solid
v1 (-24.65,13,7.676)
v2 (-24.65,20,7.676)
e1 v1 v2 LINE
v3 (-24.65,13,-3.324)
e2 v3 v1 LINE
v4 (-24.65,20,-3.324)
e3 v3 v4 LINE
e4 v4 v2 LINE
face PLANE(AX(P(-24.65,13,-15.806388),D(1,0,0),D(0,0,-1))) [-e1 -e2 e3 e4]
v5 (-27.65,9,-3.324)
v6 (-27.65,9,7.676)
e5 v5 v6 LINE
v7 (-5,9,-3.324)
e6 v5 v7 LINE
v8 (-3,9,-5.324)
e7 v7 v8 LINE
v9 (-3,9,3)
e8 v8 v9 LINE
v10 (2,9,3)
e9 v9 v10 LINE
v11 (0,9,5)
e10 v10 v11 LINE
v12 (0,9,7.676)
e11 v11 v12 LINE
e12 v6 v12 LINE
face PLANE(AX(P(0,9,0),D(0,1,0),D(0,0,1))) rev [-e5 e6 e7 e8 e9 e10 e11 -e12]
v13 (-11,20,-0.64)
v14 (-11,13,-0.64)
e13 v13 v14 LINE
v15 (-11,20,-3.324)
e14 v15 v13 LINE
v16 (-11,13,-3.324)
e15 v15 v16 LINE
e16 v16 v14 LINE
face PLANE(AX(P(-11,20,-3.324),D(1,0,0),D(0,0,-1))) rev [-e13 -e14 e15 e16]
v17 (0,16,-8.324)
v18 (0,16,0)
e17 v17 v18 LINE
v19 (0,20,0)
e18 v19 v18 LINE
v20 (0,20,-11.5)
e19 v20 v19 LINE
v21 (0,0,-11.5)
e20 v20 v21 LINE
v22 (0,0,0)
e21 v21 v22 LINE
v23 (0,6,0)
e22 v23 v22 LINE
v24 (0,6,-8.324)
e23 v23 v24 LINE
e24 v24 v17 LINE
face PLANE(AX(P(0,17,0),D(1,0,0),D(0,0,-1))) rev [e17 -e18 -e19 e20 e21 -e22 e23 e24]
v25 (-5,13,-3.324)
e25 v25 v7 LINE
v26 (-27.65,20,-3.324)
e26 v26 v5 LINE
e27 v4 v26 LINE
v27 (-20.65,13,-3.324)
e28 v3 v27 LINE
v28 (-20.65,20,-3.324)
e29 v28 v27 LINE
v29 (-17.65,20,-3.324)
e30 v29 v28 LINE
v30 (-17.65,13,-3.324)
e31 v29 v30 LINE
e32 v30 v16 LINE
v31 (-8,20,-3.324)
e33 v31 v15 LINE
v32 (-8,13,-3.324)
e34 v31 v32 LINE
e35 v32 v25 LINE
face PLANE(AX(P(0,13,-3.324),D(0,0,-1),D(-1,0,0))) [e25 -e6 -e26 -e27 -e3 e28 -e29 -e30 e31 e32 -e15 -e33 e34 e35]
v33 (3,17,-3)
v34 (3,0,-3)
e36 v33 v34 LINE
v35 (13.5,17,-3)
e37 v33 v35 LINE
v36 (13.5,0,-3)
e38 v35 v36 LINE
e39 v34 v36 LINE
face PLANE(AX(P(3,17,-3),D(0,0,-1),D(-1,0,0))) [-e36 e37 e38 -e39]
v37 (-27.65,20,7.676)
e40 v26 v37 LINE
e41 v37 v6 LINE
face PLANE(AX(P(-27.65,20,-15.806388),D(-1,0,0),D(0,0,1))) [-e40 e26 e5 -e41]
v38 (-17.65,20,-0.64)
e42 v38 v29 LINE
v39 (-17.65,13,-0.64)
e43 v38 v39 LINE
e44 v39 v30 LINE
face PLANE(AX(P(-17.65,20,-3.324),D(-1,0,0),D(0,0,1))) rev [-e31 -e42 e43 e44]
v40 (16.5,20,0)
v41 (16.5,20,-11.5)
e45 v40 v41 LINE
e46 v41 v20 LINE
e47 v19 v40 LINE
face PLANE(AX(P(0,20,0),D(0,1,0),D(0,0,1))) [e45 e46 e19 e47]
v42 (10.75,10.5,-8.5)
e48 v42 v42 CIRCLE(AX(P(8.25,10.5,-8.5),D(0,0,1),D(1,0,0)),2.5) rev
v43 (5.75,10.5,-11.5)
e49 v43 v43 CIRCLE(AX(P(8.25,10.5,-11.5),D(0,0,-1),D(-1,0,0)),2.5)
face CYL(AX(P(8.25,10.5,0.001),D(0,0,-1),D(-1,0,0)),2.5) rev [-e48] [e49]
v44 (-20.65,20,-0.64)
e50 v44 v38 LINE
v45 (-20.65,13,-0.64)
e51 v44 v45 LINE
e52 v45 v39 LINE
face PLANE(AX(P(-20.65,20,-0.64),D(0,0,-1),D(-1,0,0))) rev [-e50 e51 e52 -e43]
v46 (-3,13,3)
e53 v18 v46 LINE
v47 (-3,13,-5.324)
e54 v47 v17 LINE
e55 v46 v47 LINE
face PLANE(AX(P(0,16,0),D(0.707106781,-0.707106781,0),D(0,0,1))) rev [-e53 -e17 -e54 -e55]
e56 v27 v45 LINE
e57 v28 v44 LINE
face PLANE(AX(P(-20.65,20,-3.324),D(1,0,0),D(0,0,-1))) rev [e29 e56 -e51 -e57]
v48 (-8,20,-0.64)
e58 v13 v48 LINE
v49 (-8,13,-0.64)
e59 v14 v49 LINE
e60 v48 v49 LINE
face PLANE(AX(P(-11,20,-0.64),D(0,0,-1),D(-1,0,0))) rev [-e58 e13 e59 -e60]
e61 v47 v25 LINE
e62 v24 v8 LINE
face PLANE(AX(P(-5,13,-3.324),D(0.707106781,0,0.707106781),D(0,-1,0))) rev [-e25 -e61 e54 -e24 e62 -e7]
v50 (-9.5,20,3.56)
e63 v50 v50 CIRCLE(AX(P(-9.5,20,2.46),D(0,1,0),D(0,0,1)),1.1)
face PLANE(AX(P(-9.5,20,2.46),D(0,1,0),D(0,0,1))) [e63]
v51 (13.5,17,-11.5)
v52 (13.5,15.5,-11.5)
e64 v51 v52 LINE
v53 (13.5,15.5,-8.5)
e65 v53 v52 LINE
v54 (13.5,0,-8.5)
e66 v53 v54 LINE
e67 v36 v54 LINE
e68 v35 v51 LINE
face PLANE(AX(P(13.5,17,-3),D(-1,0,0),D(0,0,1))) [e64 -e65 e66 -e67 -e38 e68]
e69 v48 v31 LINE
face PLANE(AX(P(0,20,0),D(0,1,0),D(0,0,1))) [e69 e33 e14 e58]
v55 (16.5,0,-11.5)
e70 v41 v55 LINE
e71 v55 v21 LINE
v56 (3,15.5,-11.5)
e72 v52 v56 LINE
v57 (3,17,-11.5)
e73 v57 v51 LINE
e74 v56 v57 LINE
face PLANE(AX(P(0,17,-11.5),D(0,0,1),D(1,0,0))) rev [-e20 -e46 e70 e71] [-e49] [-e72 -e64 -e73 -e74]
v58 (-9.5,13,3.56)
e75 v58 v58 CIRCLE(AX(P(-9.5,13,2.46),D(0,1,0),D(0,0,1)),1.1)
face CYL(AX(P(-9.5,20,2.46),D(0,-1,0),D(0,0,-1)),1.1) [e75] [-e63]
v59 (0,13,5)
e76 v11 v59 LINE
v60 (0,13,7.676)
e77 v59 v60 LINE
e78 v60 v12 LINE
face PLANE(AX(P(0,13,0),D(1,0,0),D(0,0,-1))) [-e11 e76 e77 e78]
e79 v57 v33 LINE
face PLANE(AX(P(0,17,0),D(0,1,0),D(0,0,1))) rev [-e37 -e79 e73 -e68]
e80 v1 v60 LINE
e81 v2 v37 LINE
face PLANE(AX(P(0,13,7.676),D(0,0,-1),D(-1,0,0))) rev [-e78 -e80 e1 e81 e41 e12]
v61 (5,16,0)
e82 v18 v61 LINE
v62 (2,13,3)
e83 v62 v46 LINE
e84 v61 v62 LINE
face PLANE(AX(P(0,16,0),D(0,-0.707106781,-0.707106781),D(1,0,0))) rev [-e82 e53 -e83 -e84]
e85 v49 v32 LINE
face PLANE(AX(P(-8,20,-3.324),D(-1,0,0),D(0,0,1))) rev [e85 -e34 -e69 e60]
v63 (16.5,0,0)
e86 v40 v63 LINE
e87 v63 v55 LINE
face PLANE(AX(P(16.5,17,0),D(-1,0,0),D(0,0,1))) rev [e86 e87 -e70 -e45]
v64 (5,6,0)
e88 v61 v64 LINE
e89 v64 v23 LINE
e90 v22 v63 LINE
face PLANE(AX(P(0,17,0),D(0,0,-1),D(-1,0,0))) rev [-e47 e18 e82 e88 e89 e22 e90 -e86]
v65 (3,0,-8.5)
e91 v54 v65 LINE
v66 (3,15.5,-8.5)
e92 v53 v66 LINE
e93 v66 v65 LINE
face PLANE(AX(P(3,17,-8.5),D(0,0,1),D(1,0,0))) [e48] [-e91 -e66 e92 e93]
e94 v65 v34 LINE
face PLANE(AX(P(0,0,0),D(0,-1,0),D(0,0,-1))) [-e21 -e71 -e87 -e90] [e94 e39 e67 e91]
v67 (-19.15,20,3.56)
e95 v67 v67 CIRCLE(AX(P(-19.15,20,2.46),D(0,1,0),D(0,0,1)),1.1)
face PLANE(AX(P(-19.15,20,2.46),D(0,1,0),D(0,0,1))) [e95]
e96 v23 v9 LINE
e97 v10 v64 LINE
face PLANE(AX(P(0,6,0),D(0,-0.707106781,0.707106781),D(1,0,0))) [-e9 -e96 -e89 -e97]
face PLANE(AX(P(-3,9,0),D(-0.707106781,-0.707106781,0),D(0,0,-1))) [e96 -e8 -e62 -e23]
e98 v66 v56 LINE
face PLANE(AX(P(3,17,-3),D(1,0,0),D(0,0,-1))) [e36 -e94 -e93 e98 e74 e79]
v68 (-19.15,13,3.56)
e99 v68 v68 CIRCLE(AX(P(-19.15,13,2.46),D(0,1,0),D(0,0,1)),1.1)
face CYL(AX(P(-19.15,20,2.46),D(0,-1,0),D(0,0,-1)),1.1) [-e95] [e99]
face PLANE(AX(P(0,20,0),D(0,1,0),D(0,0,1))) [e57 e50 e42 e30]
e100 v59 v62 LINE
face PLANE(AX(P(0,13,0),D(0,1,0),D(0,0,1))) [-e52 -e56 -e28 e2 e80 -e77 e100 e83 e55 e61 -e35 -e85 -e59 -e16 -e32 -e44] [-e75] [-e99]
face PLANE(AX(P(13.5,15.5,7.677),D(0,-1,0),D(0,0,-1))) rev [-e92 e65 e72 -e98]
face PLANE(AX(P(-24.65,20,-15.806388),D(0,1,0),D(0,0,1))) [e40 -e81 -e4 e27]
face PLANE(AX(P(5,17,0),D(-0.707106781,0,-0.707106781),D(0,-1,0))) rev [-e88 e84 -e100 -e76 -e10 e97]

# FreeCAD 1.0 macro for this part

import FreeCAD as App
import Part
import Sketcher

V = App.Vector


def edges_at(feature, points):
    """Names of the edges that pass closest to the given points."""
    edges = feature.Shape.Edges
    near = lambda p: min(range(len(edges)), key=lambda i: edges[i].distToShape(Part.Vertex(*p))[0])
    return sorted({f"Edge{near(p) + 1}" for p in points})

doc = App.newDocument("Part")
body = doc.addObject("PartDesign::Body", "Body")

# Sketch on XZ plane
sketch1 = body.newObject("Sketcher::SketchObject", "Sketch")
sketch1.AttachmentSupport = (doc.getObject("XZ_Plane"), [""])
sketch1.MapMode = "FlatFace"
sketch1.addGeometry(Part.LineSegment(V(0, -12, 0), V(0, 0, 0)), False)
sketch1.addGeometry(Part.LineSegment(V(0, 0, 0), V(16, 0, 0)), False)
sketch1.addGeometry(Part.LineSegment(V(16, 0, 0), V(16, -12, 0)), False)
sketch1.addGeometry(Part.LineSegment(V(16, -12, 0), V(0, -12, 0)), False)
sketch1.addGeometry(Part.LineSegment(V(14, -3, 0), V(3, -3, 0)), False)
sketch1.addGeometry(Part.LineSegment(V(3, -3, 0), V(3, -8, 0)), False)
sketch1.addGeometry(Part.LineSegment(V(3, -8, 0), V(14, -8, 0)), False)
sketch1.addGeometry(Part.LineSegment(V(14, -8, 0), V(14, -3, 0)), False)
sketch1.addConstraint(Sketcher.Constraint("Coincident", 0, 2, 1, 1))
sketch1.addConstraint(Sketcher.Constraint("Coincident", 1, 2, 2, 1))
sketch1.addConstraint(Sketcher.Constraint("Coincident", 2, 2, 3, 1))
sketch1.addConstraint(Sketcher.Constraint("Coincident", 3, 2, 0, 1))
sketch1.addConstraint(Sketcher.Constraint("Coincident", 4, 2, 5, 1))
sketch1.addConstraint(Sketcher.Constraint("Coincident", 5, 2, 6, 1))
sketch1.addConstraint(Sketcher.Constraint("Coincident", 6, 2, 7, 1))
sketch1.addConstraint(Sketcher.Constraint("Coincident", 7, 2, 4, 1))
sketch1.addConstraint(Sketcher.Constraint("Vertical", 0))
sketch1.addConstraint(Sketcher.Constraint("Horizontal", 1))
sketch1.addConstraint(Sketcher.Constraint("Vertical", 2))
sketch1.addConstraint(Sketcher.Constraint("Horizontal", 3))
sketch1.addConstraint(Sketcher.Constraint("Horizontal", 4))
sketch1.addConstraint(Sketcher.Constraint("Vertical", 5))
sketch1.addConstraint(Sketcher.Constraint("Horizontal", 6))
sketch1.addConstraint(Sketcher.Constraint("Vertical", 7))
sketch1.addConstraint(Sketcher.Constraint("Coincident", 0, 2, -1, 1))
sketch1.addConstraint(Sketcher.Constraint("DistanceX", 1, 1, 1, 2, 16.5))
sketch1.addConstraint(Sketcher.Constraint("DistanceX", 4, 2, 4, 1, 10.5))
sketch1.addConstraint(Sketcher.Constraint("DistanceY", 0, 1, 0, 2, 11.5))
sketch1.addConstraint(Sketcher.Constraint("DistanceY", 5, 2, 5, 1, 5.5))
sketch1.addConstraint(Sketcher.Constraint("DistanceX", -1, 1, 4, 2, 3.0))
sketch1.addConstraint(Sketcher.Constraint("DistanceY", 4, 2, -1, 1, 3.0))
pad1 = body.newObject("PartDesign::Pad", "Pad")
pad1.Profile = sketch1
pad1.Length = 17
pad1.Reversed = True

# Sketch on XY plane
sketch2 = body.newObject("Sketcher::SketchObject", "Sketch001")
sketch2.AttachmentSupport = (doc.getObject("XY_Plane"), [""])
sketch2.MapMode = "FlatFace"
sketch2.AttachmentOffset = App.Placement(V(0, 0, -11.5), App.Rotation())
sketch2.addGeometry(Part.Circle(V(8.2, 10.5, 0), V(0, 0, 1), 2.5), False)
sketch2.addConstraint(Sketcher.Constraint("Diameter", 0, 5.0))
sketch2.addConstraint(Sketcher.Constraint("DistanceY", -1, 1, 0, 3, 10.5))
sketch2.addConstraint(Sketcher.Constraint("DistanceX", -1, 1, 0, 3, 8.25))
pocket1 = body.newObject("PartDesign::Pocket", "Pocket")
pocket1.Profile = sketch2
pocket1.Type = "UpToFirst"
pocket1.Reversed = True

# Sketch on XZ plane
sketch3 = body.newObject("Sketcher::SketchObject", "Sketch002")
sketch3.AttachmentSupport = (doc.getObject("XZ_Plane"), [""])
sketch3.MapMode = "FlatFace"
sketch3.AttachmentOffset = App.Placement(V(0, 0, -17), App.Rotation())
sketch3.addGeometry(Part.LineSegment(V(0, -12, 0), V(0, 0, 0)), False)
sketch3.addGeometry(Part.LineSegment(V(0, 0, 0), V(16, 0, 0)), False)
sketch3.addGeometry(Part.LineSegment(V(16, 0, 0), V(16, -12, 0)), False)
sketch3.addGeometry(Part.LineSegment(V(16, -12, 0), V(0, -12, 0)), False)
sketch3.addConstraint(Sketcher.Constraint("Coincident", 0, 2, 1, 1))
sketch3.addConstraint(Sketcher.Constraint("Coincident", 1, 2, 2, 1))
sketch3.addConstraint(Sketcher.Constraint("Coincident", 2, 2, 3, 1))
sketch3.addConstraint(Sketcher.Constraint("Coincident", 3, 2, 0, 1))
sketch3.addConstraint(Sketcher.Constraint("Vertical", 0))
sketch3.addConstraint(Sketcher.Constraint("Horizontal", 1))
sketch3.addConstraint(Sketcher.Constraint("Vertical", 2))
sketch3.addConstraint(Sketcher.Constraint("Horizontal", 3))
sketch3.addConstraint(Sketcher.Constraint("Coincident", 0, 2, -1, 1))
sketch3.addConstraint(Sketcher.Constraint("DistanceX", 1, 1, 1, 2, 16.5))
sketch3.addConstraint(Sketcher.Constraint("DistanceY", 0, 1, 0, 2, 11.5))
pad2 = body.newObject("PartDesign::Pad", "Pad001")
pad2.Profile = sketch3
pad2.Length = 3
pad2.Reversed = True

# Sketch on XZ plane
sketch4 = body.newObject("Sketcher::SketchObject", "Sketch003")
sketch4.AttachmentSupport = (doc.getObject("XZ_Plane"), [""])
sketch4.MapMode = "FlatFace"
sketch4.AttachmentOffset = App.Placement(V(0, 0, -9), App.Rotation())
sketch4.addGeometry(Part.LineSegment(V(-22, -3, 0), V(-22, 8, 0)), False)
sketch4.addGeometry(Part.LineSegment(V(-22, 8, 0), V(0, 8, 0)), False)
sketch4.addGeometry(Part.LineSegment(V(0, 8, 0), V(0, -3, 0)), False)
sketch4.addGeometry(Part.LineSegment(V(0, -3, 0), V(-22, -3, 0)), False)
sketch4.addConstraint(Sketcher.Constraint("Coincident", 0, 2, 1, 1))
sketch4.addConstraint(Sketcher.Constraint("Coincident", 1, 2, 2, 1))
sketch4.addConstraint(Sketcher.Constraint("Coincident", 2, 2, 3, 1))
sketch4.addConstraint(Sketcher.Constraint("Coincident", 3, 2, 0, 1))
sketch4.addConstraint(Sketcher.Constraint("Vertical", 0))
sketch4.addConstraint(Sketcher.Constraint("Horizontal", 1))
sketch4.addConstraint(Sketcher.Constraint("Vertical", 2))
sketch4.addConstraint(Sketcher.Constraint("Horizontal", 3))
sketch4.addConstraint(Sketcher.Constraint("PointOnObject", 1, 2, -2))
sketch4.addConstraint(Sketcher.Constraint("DistanceY", 0, 1, 0, 2, 11.0))
sketch4.addConstraint(Sketcher.Constraint("DistanceX", 1, 1, 1, 2, 21.75))
sketch4.addConstraint(Sketcher.Constraint("DistanceY", -1, 1, 0, 2, 7.676))
pad3 = body.newObject("PartDesign::Pad", "Pad002")
pad3.Profile = sketch4
pad3.Length = 4
pad3.Reversed = True
doc.recompute()

chamfer = body.newObject("PartDesign::Chamfer", "Chamfer")
chamfer.Base = (pad3, edges_at(pad3, [(0, 11, 0), (0, 11, -3.324)]))
chamfer.Size = 5
doc.recompute()

chamfer2 = body.newObject("PartDesign::Chamfer", "Chamfer001")
chamfer2.Base = (chamfer, edges_at(chamfer, [
    (0, 13, -4.162),
    (0, 9, -4.162),
    (2.5, 13, 0),
    (2.5, 9, 0),
]))
chamfer2.Size = 3

# Sketch on XZ plane
sketch5 = body.newObject("Sketcher::SketchObject", "Sketch004")
sketch5.AttachmentSupport = (doc.getObject("XZ_Plane"), [""])
sketch5.MapMode = "FlatFace"
sketch5.AttachmentOffset = App.Placement(V(0, 0, -13), App.Rotation())
sketch5.addGeometry(Part.Circle(V(-19.1, 2.5, 0), V(0, 0, 1), 1.1), False)
sketch5.addGeometry(Part.Circle(V(-9.5, 2.5, 0), V(0, 0, 1), 1.1), False)
sketch5.addGeometry(Part.LineSegment(V(-20.6, -3.3, 0), V(-20.6, -0.6, 0)), False)
sketch5.addGeometry(Part.LineSegment(V(-20.6, -0.6, 0), V(-17.6, -0.6, 0)), False)
sketch5.addGeometry(Part.LineSegment(V(-17.6, -0.6, 0), V(-17.6, -3.3, 0)), False)
sketch5.addGeometry(Part.LineSegment(V(-17.6, -3.3, 0), V(-20.6, -3.3, 0)), False)
sketch5.addGeometry(Part.LineSegment(V(-11, -3.3, 0), V(-11, -0.6, 0)), False)
sketch5.addGeometry(Part.LineSegment(V(-11, -0.6, 0), V(-8, -0.6, 0)), False)
sketch5.addGeometry(Part.LineSegment(V(-8, -0.6, 0), V(-8, -3.3, 0)), False)
sketch5.addGeometry(Part.LineSegment(V(-8, -3.3, 0), V(-11, -3.3, 0)), False)
sketch5.addConstraint(Sketcher.Constraint("Coincident", 2, 2, 3, 1))
sketch5.addConstraint(Sketcher.Constraint("Coincident", 3, 2, 4, 1))
sketch5.addConstraint(Sketcher.Constraint("Coincident", 4, 2, 5, 1))
sketch5.addConstraint(Sketcher.Constraint("Coincident", 5, 2, 2, 1))
sketch5.addConstraint(Sketcher.Constraint("Coincident", 6, 2, 7, 1))
sketch5.addConstraint(Sketcher.Constraint("Coincident", 7, 2, 8, 1))
sketch5.addConstraint(Sketcher.Constraint("Coincident", 8, 2, 9, 1))
sketch5.addConstraint(Sketcher.Constraint("Coincident", 9, 2, 6, 1))
sketch5.addConstraint(Sketcher.Constraint("Vertical", 2))
sketch5.addConstraint(Sketcher.Constraint("Horizontal", 3))
sketch5.addConstraint(Sketcher.Constraint("Vertical", 4))
sketch5.addConstraint(Sketcher.Constraint("Horizontal", 5))
sketch5.addConstraint(Sketcher.Constraint("Vertical", 6))
sketch5.addConstraint(Sketcher.Constraint("Horizontal", 7))
sketch5.addConstraint(Sketcher.Constraint("Vertical", 8))
sketch5.addConstraint(Sketcher.Constraint("Horizontal", 9))
sketch5.addConstraint(Sketcher.Constraint("Equal", 0, 1))
sketch5.addConstraint(Sketcher.Constraint("Horizontal", 0, 3, 1, 3))
sketch5.addConstraint(Sketcher.Constraint("Horizontal", 3, 2, 6, 2))
sketch5.addConstraint(Sketcher.Constraint("Horizontal", 5, 2, 8, 2))
sketch5.addConstraint(Sketcher.Constraint("Equal", 5, 7))
sketch5.addConstraint(Sketcher.Constraint("Diameter", 0, 2.2))
sketch5.addConstraint(Sketcher.Constraint("DistanceX", 3, 1, 3, 2, 3.0))
sketch5.addConstraint(Sketcher.Constraint("DistanceX", 6, 2, -1, 1, 11.0))
sketch5.addConstraint(Sketcher.Constraint("DistanceX", 1, 3, -1, 1, 9.5))
sketch5.addConstraint(Sketcher.Constraint("DistanceX", 2, 2, 0, 3, 1.5))
sketch5.addConstraint(Sketcher.Constraint("DistanceY", 2, 2, 0, 3, 3.1))
sketch5.addConstraint(Sketcher.Constraint("DistanceY", 2, 1, 2, 2, 2.684))
sketch5.addConstraint(Sketcher.Constraint("DistanceX", 0, 3, -1, 1, 19.15))
sketch5.addConstraint(Sketcher.Constraint("DistanceY", -1, 1, 0, 3, 2.46))
pad4 = body.newObject("PartDesign::Pad", "Pad003")
pad4.Profile = sketch5
pad4.Length = 7
pad4.Reversed = True

# Sketch on XY plane
sketch6 = body.newObject("Sketcher::SketchObject", "Sketch005")
sketch6.AttachmentSupport = (doc.getObject("XY_Plane"), [""])
sketch6.MapMode = "FlatFace"
sketch6.AttachmentOffset = App.Placement(V(0, 0, 7.676), App.Rotation())
sketch6.addGeometry(Part.LineSegment(V(-21.8, 13, 0), V(-24.6, 13, 0)), False)
sketch6.addGeometry(Part.LineSegment(V(-24.6, 13, 0), V(-24.6, 20, 0)), False)
sketch6.addGeometry(Part.LineSegment(V(-24.6, 20, 0), V(-27.6, 20, 0)), False)
sketch6.addGeometry(Part.LineSegment(V(-27.6, 20, 0), V(-27.6, 9, 0)), False)
sketch6.addGeometry(Part.LineSegment(V(-27.6, 9, 0), V(-21.8, 9, 0)), False)
sketch6.addGeometry(Part.LineSegment(V(-21.8, 9, 0), V(-21.8, 13, 0)), False)
sketch6.addConstraint(Sketcher.Constraint("Coincident", 0, 2, 1, 1))
sketch6.addConstraint(Sketcher.Constraint("Coincident", 1, 2, 2, 1))
sketch6.addConstraint(Sketcher.Constraint("Coincident", 2, 2, 3, 1))
sketch6.addConstraint(Sketcher.Constraint("Coincident", 3, 2, 4, 1))
sketch6.addConstraint(Sketcher.Constraint("Coincident", 4, 2, 5, 1))
sketch6.addConstraint(Sketcher.Constraint("Coincident", 5, 2, 0, 1))
sketch6.addConstraint(Sketcher.Constraint("Horizontal", 0))
sketch6.addConstraint(Sketcher.Constraint("Vertical", 1))
sketch6.addConstraint(Sketcher.Constraint("Horizontal", 2))
sketch6.addConstraint(Sketcher.Constraint("Vertical", 3))
sketch6.addConstraint(Sketcher.Constraint("Horizontal", 4))
sketch6.addConstraint(Sketcher.Constraint("Vertical", 5))
sketch6.addConstraint(Sketcher.Constraint("DistanceX", 2, 2, 2, 1, 3.0))
sketch6.addConstraint(Sketcher.Constraint("DistanceY", 1, 1, 1, 2, 7.0))
sketch6.addConstraint(Sketcher.Constraint("DistanceY", 3, 2, 3, 1, 11.0))
sketch6.addConstraint(Sketcher.Constraint("DistanceX", 0, 2, 0, 1, 2.9))
sketch6.addConstraint(Sketcher.Constraint("DistanceY", -1, 1, 0, 2, 13.0))
sketch6.addConstraint(Sketcher.Constraint("DistanceX", 0, 2, -1, 1, 24.65))
pad5 = body.newObject("PartDesign::Pad", "Pad004")
pad5.Profile = sketch6
pad5.Length = 11
pad5.Reversed = True

# Sketch on XY plane
sketch7 = body.newObject("Sketcher::SketchObject", "Sketch006")
sketch7.AttachmentSupport = (doc.getObject("XY_Plane"), [""])
sketch7.MapMode = "FlatFace"
sketch7.AttachmentOffset = App.Placement(V(0, 0, -11.5), App.Rotation())
sketch7.addGeometry(Part.LineSegment(V(13.5, 17, 0), V(13.5, 15.5, 0)), False)
sketch7.addGeometry(Part.LineSegment(V(13.5, 15.5, 0), V(3, 15.5, 0)), False)
sketch7.addGeometry(Part.LineSegment(V(3, 15.5, 0), V(3, 17, 0)), False)
sketch7.addGeometry(Part.LineSegment(V(3, 17, 0), V(13.5, 17, 0)), False)
sketch7.addConstraint(Sketcher.Constraint("Coincident", 0, 2, 1, 1))
sketch7.addConstraint(Sketcher.Constraint("Coincident", 1, 2, 2, 1))
sketch7.addConstraint(Sketcher.Constraint("Coincident", 2, 2, 3, 1))
sketch7.addConstraint(Sketcher.Constraint("Coincident", 3, 2, 0, 1))
sketch7.addConstraint(Sketcher.Constraint("Vertical", 0))
sketch7.addConstraint(Sketcher.Constraint("Horizontal", 1))
sketch7.addConstraint(Sketcher.Constraint("Vertical", 2))
sketch7.addConstraint(Sketcher.Constraint("Horizontal", 3))
sketch7.addConstraint(Sketcher.Constraint("DistanceX", 1, 2, 1, 1, 10.5))
sketch7.addConstraint(Sketcher.Constraint("DistanceY", 0, 2, 0, 1, 1.5))
sketch7.addConstraint(Sketcher.Constraint("DistanceX", -1, 1, 1, 2, 3.0))
sketch7.addConstraint(Sketcher.Constraint("DistanceY", -1, 1, 2, 2, 17.0))
pocket2 = body.newObject("PartDesign::Pocket", "Pocket001")
pocket2.Profile = sketch7
pocket2.Type = "UpToFirst"
pocket2.Reversed = True

doc.recompute()
